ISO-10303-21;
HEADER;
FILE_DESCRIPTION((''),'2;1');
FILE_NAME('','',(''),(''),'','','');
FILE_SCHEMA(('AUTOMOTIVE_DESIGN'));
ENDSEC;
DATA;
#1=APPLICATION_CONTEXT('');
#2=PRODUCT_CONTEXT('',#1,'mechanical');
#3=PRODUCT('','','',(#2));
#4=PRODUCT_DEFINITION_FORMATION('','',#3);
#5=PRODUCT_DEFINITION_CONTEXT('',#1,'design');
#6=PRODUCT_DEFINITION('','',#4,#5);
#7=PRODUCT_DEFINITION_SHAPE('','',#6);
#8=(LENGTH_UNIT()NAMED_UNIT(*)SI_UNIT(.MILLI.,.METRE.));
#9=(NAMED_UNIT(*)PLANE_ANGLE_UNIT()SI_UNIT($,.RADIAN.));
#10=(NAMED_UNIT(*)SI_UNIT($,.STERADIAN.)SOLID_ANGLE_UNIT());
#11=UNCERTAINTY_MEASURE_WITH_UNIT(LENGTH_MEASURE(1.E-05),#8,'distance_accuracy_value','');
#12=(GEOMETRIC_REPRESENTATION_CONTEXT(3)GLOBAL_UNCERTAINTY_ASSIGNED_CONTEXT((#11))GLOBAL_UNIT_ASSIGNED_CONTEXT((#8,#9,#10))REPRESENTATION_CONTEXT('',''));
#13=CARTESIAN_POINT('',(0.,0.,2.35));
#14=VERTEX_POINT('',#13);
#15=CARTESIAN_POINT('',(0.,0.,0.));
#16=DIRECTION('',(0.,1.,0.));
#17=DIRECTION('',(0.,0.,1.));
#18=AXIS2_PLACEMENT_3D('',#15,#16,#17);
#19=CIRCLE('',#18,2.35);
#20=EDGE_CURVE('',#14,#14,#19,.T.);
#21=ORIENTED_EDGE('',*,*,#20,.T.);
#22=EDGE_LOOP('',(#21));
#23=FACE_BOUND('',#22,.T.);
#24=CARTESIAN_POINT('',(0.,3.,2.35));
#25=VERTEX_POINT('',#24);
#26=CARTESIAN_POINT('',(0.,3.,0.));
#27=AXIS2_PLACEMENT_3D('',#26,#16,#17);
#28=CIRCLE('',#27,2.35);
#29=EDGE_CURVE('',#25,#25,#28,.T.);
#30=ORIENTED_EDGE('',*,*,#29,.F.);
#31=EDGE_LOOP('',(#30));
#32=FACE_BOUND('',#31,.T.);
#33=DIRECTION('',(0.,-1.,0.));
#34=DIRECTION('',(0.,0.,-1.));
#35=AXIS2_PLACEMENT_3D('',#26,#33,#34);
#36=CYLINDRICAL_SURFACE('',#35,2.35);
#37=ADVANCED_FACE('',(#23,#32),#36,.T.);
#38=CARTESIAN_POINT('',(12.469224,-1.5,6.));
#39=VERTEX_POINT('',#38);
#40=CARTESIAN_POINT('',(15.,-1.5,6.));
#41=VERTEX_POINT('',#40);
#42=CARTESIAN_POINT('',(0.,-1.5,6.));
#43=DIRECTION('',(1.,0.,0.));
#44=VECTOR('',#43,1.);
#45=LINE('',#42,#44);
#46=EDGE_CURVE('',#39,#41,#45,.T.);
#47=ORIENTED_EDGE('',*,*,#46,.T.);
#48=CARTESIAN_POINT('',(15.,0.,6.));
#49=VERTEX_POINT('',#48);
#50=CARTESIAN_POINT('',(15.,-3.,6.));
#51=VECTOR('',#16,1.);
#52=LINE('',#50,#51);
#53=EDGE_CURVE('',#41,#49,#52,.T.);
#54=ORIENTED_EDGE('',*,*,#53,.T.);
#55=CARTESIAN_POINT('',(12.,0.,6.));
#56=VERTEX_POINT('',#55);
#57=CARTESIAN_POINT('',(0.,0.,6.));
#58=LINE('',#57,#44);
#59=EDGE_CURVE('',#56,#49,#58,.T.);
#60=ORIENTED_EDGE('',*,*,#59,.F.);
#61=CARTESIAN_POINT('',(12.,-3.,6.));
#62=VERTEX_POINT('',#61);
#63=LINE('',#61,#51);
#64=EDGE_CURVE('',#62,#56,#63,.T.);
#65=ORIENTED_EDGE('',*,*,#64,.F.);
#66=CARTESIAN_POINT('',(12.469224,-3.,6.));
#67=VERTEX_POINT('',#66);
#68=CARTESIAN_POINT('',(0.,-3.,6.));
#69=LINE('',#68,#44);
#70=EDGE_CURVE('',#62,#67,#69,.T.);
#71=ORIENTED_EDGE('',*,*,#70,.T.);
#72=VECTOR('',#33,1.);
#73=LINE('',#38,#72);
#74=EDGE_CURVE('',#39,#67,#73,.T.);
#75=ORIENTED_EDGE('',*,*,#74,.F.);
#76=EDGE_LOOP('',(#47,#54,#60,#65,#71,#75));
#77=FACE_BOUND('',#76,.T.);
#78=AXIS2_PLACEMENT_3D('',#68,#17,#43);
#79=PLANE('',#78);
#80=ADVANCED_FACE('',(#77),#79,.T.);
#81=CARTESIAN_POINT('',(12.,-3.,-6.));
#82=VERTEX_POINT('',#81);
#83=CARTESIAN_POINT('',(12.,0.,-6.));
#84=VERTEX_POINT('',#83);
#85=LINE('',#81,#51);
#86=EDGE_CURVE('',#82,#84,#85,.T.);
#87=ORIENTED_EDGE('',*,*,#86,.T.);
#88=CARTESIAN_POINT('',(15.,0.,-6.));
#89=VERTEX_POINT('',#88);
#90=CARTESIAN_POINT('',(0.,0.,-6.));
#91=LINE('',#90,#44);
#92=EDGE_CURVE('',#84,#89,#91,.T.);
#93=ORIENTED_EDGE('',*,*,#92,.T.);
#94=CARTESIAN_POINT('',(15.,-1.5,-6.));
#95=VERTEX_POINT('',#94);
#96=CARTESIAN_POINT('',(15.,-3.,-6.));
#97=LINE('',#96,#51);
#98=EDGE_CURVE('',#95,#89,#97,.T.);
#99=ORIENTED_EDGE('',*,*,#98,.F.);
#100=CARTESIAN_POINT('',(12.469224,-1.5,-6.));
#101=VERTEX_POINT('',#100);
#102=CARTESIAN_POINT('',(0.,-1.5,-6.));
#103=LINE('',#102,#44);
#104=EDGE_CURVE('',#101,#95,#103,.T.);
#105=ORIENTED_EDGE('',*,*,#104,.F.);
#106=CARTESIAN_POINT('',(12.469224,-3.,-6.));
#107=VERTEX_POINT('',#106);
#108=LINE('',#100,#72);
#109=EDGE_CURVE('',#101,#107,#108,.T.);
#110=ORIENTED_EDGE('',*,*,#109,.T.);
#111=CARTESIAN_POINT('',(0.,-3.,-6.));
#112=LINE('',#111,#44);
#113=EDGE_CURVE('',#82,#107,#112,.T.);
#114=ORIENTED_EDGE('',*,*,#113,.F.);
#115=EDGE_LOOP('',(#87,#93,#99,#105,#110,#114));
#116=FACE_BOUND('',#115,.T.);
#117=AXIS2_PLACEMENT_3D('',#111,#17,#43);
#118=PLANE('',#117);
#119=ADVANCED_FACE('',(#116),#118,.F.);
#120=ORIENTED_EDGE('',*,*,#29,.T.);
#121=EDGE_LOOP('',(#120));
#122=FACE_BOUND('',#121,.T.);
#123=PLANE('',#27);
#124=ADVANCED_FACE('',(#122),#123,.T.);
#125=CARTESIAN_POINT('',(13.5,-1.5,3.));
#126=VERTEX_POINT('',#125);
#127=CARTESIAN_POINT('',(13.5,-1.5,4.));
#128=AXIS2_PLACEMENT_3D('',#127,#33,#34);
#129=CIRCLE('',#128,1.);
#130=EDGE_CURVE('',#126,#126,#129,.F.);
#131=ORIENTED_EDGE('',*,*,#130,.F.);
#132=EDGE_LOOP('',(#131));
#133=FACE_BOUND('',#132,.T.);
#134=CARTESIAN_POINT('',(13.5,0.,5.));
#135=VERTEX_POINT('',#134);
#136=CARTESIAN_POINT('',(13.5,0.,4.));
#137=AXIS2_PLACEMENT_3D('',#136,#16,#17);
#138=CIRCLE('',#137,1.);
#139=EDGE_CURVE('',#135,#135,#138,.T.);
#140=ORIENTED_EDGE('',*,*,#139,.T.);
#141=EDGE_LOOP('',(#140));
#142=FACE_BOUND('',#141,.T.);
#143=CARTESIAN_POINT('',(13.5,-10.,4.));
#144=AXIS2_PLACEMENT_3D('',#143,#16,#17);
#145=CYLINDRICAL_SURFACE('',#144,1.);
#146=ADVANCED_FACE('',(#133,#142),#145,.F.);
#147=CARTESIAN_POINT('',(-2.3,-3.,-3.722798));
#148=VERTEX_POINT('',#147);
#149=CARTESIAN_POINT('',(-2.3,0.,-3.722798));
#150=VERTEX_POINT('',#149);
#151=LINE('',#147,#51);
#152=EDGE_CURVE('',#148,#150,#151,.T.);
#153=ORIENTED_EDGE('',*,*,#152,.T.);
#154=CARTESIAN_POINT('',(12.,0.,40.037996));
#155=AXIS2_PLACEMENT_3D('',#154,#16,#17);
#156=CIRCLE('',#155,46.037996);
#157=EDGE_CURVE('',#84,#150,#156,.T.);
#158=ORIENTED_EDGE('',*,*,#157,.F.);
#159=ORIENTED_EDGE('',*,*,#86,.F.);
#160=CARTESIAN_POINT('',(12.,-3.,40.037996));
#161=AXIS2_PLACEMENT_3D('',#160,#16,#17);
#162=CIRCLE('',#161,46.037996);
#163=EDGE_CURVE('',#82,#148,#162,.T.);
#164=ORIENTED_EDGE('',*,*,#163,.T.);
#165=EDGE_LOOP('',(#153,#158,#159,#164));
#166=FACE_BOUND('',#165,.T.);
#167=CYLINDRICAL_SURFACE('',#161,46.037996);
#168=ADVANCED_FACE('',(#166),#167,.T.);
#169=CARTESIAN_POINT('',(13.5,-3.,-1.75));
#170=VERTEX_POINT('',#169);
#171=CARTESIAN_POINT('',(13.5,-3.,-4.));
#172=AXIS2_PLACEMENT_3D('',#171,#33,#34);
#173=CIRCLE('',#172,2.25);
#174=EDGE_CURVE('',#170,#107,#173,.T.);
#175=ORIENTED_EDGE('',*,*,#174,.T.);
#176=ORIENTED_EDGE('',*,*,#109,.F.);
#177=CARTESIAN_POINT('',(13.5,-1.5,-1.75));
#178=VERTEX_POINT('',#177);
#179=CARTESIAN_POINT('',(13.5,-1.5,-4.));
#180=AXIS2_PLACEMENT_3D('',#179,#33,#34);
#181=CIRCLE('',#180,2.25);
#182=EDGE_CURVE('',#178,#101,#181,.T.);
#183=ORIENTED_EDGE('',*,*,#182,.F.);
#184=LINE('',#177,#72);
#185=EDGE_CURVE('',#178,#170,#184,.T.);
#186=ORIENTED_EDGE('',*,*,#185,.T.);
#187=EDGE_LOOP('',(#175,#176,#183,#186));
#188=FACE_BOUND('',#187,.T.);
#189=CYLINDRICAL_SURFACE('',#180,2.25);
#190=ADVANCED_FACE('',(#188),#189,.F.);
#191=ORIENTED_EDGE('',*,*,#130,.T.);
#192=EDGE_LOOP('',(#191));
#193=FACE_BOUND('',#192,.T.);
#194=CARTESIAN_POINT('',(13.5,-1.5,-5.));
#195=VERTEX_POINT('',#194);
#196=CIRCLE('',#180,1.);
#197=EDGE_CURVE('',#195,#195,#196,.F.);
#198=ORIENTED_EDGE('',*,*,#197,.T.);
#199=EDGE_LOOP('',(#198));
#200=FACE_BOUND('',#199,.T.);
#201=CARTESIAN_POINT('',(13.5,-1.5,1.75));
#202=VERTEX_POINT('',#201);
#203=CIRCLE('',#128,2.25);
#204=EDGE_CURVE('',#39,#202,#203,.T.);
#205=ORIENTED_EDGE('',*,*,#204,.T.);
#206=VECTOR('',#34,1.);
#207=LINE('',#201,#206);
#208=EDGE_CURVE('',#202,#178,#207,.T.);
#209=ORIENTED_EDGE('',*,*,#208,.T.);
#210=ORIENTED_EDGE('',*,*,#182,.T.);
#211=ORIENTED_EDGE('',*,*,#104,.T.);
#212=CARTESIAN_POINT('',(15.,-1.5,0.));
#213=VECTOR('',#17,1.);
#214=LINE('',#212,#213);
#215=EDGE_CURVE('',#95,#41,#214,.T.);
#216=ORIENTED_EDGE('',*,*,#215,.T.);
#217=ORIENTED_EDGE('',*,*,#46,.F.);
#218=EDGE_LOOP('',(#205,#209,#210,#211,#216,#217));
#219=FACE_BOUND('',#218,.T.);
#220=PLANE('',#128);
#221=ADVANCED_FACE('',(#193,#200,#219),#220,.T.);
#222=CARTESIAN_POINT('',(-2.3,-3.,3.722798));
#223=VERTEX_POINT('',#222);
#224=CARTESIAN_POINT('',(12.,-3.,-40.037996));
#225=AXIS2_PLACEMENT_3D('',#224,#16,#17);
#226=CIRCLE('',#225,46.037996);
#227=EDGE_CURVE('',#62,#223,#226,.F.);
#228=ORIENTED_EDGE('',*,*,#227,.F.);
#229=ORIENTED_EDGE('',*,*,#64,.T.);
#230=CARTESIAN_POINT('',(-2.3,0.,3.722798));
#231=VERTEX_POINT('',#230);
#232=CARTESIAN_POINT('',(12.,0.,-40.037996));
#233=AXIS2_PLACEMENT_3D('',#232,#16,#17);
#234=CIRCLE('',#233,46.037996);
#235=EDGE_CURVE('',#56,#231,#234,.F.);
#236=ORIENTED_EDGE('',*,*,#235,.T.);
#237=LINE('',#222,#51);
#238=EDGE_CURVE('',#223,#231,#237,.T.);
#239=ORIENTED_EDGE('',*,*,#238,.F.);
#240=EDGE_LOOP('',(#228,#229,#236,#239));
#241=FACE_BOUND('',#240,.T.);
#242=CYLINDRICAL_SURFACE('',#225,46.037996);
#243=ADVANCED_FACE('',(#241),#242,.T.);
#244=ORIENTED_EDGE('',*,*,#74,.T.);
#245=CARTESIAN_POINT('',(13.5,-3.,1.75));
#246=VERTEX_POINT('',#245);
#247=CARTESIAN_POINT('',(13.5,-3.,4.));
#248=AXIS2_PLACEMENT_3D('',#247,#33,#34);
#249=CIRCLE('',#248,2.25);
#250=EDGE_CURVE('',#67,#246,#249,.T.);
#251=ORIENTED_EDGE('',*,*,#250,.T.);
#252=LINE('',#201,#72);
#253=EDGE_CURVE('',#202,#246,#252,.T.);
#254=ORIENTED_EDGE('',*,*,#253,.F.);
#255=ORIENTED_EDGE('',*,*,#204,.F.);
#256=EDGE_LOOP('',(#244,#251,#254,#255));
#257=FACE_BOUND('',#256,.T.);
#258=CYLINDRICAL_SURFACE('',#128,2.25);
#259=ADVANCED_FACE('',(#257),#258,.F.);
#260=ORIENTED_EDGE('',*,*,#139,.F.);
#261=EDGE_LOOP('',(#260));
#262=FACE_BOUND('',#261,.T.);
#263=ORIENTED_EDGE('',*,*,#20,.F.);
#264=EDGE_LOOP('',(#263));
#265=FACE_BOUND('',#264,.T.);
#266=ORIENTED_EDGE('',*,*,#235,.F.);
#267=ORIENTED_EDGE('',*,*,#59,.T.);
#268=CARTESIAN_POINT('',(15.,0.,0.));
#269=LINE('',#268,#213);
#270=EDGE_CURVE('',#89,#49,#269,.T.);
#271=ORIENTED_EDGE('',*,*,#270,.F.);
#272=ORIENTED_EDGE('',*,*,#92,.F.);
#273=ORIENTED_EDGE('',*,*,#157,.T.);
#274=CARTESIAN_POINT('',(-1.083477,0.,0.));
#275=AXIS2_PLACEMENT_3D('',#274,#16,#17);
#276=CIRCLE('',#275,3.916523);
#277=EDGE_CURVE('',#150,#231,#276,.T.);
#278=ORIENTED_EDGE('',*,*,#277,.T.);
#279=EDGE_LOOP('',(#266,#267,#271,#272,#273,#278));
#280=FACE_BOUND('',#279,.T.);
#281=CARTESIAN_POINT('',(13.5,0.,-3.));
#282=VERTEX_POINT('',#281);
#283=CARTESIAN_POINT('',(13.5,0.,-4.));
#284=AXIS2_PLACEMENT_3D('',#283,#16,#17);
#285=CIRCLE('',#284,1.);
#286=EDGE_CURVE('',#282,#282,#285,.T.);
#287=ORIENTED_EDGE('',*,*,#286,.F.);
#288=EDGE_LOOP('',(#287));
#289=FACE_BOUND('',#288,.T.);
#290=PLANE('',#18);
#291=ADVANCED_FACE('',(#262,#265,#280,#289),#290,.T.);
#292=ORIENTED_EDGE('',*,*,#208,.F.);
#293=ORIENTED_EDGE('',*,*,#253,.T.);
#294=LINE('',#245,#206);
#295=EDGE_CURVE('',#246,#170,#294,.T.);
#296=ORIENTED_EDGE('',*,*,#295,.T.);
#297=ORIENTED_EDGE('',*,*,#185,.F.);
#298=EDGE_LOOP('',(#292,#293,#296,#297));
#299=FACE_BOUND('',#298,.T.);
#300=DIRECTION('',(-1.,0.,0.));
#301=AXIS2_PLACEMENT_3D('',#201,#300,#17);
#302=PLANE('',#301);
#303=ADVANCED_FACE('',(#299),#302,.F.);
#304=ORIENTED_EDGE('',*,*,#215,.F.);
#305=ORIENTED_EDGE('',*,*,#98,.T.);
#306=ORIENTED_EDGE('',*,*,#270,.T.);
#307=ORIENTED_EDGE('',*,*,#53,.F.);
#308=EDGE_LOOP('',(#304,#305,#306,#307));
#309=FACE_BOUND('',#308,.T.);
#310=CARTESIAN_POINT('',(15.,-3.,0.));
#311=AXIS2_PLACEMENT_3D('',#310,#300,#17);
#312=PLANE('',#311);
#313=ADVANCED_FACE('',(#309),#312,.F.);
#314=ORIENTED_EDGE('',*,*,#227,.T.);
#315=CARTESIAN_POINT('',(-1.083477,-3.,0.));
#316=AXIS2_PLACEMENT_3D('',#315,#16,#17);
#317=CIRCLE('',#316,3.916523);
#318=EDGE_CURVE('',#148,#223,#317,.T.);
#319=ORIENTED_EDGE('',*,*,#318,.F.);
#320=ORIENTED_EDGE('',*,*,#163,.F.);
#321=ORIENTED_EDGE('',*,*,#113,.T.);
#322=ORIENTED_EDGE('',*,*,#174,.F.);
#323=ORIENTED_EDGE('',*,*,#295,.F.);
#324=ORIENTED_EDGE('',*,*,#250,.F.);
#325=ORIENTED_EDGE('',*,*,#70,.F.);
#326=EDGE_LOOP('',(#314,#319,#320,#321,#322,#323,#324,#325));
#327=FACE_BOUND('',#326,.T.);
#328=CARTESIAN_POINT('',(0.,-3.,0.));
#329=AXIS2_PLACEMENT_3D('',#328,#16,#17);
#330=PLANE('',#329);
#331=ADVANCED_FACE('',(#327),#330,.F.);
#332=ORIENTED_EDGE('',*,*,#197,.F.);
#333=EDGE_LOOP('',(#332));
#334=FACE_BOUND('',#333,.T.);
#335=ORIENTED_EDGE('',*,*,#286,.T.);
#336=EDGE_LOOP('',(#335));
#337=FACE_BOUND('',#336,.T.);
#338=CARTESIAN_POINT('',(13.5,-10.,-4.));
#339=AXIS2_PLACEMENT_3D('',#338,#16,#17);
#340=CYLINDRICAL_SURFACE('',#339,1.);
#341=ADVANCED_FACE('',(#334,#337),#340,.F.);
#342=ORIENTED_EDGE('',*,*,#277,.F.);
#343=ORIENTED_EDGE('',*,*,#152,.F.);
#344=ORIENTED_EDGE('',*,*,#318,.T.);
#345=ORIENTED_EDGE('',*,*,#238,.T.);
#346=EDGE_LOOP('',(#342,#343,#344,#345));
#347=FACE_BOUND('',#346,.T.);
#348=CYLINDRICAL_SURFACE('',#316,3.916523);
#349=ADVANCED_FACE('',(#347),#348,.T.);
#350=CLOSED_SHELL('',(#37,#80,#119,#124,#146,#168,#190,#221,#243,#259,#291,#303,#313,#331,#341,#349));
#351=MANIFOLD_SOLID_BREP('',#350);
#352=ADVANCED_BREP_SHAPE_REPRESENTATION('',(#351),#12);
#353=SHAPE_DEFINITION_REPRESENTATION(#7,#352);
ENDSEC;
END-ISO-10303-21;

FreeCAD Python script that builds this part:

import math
import FreeCAD as App
import Part
import Sketcher
Q = App.Units.Quantity

doc = App.newDocument("Part")
body = doc.addObject("PartDesign::Body", "Body")

# Sketch on XZ plane
sketch1 = doc.addObject("Sketcher::SketchObject", "Sketch")
body.addObject(sketch1)
sketch1.AttachmentSupport = (doc.XZ_Plane, [""])
sketch1.MapMode = "FlatFace"
sketch1.addGeometry(Part.LineSegment(App.Vector(15, -6, 0), App.Vector(12, -6, 0)), False)
sketch1.addGeometry(Part.ArcOfCircle(Part.Circle(App.Vector(12, 40, 0), App.Vector(0, 0, 1), 46), math.radians(-108.1), math.radians(-90)), False)
sketch1.addGeometry(Part.ArcOfCircle(Part.Circle(App.Vector(-1.1, 0, 0), App.Vector(0, 0, 1), 3.9), math.radians(108), math.radians(252)), False)
sketch1.addGeometry(Part.ArcOfCircle(Part.Circle(App.Vector(12, -40, 0), App.Vector(0, 0, 1), 46), math.radians(90), math.radians(108.1)), False)
sketch1.addGeometry(Part.LineSegment(App.Vector(12, 6, 0), App.Vector(15, 6, 0)), False)
sketch1.addGeometry(Part.LineSegment(App.Vector(15, 6, 0), App.Vector(15, -6, 0)), False)
sketch1.addConstraint(Sketcher.Constraint("Tangent", 0, 2, 1, 2))
sketch1.addConstraint(Sketcher.Constraint("Tangent", 1, 1, 2, 2))
sketch1.addConstraint(Sketcher.Constraint("Tangent", 2, 1, 3, 2))
sketch1.addConstraint(Sketcher.Constraint("Tangent", 3, 1, 4, 1))
sketch1.addConstraint(Sketcher.Constraint("Coincident", 4, 2, 5, 1))
sketch1.addConstraint(Sketcher.Constraint("Coincident", 5, 2, 0, 1))
sketch1.addConstraint(Sketcher.Constraint("Horizontal", 0))
sketch1.addConstraint(Sketcher.Constraint("Horizontal", 4))
sketch1.addConstraint(Sketcher.Constraint("Vertical", 5))
sketch1.addConstraint(Sketcher.Constraint("Equal", 1, 3))
sketch1.addConstraint(Sketcher.Constraint("Symmetric", 1, 3, 3, 3, -1))
sketch1.addConstraint(Sketcher.Constraint("DistanceX", 0, 2, 0, 1, Q("3 mm")))
sketch1.addConstraint(Sketcher.Constraint("DistanceY", 5, 2, 5, 1, Q("12 mm")))
sketch1.addConstraint(Sketcher.Constraint("DistanceX", -1, 1, 1, 3, Q("12 mm")))
sketch1.addConstraint(Sketcher.Constraint("DistanceX", 1, 1, -1, 1, Q("2.3 mm")))
sketch1.addConstraint(Sketcher.Constraint("Radius", 1, Q("46.037996 mm")))
pad1 = doc.addObject("PartDesign::Pad", "Pad")
body.addObject(pad1)
pad1.Profile = sketch1
pad1.Length = 3

# Sketch on XZ plane
sketch2 = doc.addObject("Sketcher::SketchObject", "Sketch001")
body.addObject(sketch2)
sketch2.AttachmentSupport = (doc.XZ_Plane, [""])
sketch2.MapMode = "FlatFace"
sketch2.addGeometry(Part.Circle(App.Vector(0, 0, 0), App.Vector(0, 0, 1), 2.4), False)
sketch2.addConstraint(Sketcher.Constraint("Coincident", 0, 3, -1, 1))
sketch2.addConstraint(Sketcher.Constraint("Diameter", 0, Q("4.7 mm")))
pad2 = doc.addObject("PartDesign::Pad", "Pad001")
body.addObject(pad2)
pad2.Profile = sketch2
pad2.Length = 3
pad2.Reversed = True

# Sketch on XZ plane
sketch3 = doc.addObject("Sketcher::SketchObject", "Sketch002")
body.addObject(sketch3)
sketch3.AttachmentSupport = (doc.XZ_Plane, [""])
sketch3.MapMode = "FlatFace"
sketch3.addGeometry(Part.Circle(App.Vector(13.5, 4, 0), App.Vector(0, 0, 1), 1), False)
sketch3.addGeometry(Part.Circle(App.Vector(13.5, -4, 0), App.Vector(0, 0, 1), 1), False)
sketch3.addConstraint(Sketcher.Constraint("Equal", 0, 1))
sketch3.addConstraint(Sketcher.Constraint("Symmetric", 0, 3, 1, 3, -1))
sketch3.addConstraint(Sketcher.Constraint("Diameter", 0, Q("2 mm")))
sketch3.addConstraint(Sketcher.Constraint("DistanceY", -1, 1, 0, 3, Q("4 mm")))
sketch3.addConstraint(Sketcher.Constraint("DistanceX", -1, 1, 0, 3, Q("13.5 mm")))
pocket1 = doc.addObject("PartDesign::Pocket", "Pocket")
body.addObject(pocket1)
pocket1.Profile = sketch3
pocket1.Length = 10
pocket1.Reversed = True

# Sketch on XZ plane
sketch4 = doc.addObject("Sketcher::SketchObject", "Sketch003")
body.addObject(sketch4)
sketch4.AttachmentSupport = (doc.XZ_Plane, [""])
sketch4.MapMode = "FlatFace"
sketch4.AttachmentOffset = App.Placement(App.Vector(0, 0, 3), App.Rotation())
sketch4.addGeometry(Part.LineSegment(App.Vector(13.5, 10, 0), App.Vector(13.5, 6.2, 0)), False)
sketch4.addGeometry(Part.ArcOfCircle(Part.Circle(App.Vector(13.5, 4, 0), App.Vector(0, 0, 1), 2.2), math.radians(90), math.radians(270)), False)
sketch4.addGeometry(Part.LineSegment(App.Vector(13.5, 1.8, 0), App.Vector(13.5, -1.8, 0)), False)
sketch4.addGeometry(Part.ArcOfCircle(Part.Circle(App.Vector(13.5, -4, 0), App.Vector(0, 0, 1), 2.2), math.radians(90), math.radians(270)), False)
sketch4.addGeometry(Part.LineSegment(App.Vector(13.5, -6.2, 0), App.Vector(13.5, -10.1, 0)), False)
sketch4.addGeometry(Part.LineSegment(App.Vector(13.5, -10.1, 0), App.Vector(18.7, -10.1, 0)), False)
sketch4.addGeometry(Part.LineSegment(App.Vector(18.7, -10.1, 0), App.Vector(19.2, 10, 0)), False)
sketch4.addGeometry(Part.LineSegment(App.Vector(19.2, 10, 0), App.Vector(13.5, 10, 0)), False)
sketch4.addConstraint(Sketcher.Constraint("Coincident", 0, 2, 1, 1))
sketch4.addConstraint(Sketcher.Constraint("Coincident", 1, 2, 2, 1))
sketch4.addConstraint(Sketcher.Constraint("Coincident", 2, 2, 3, 1))
sketch4.addConstraint(Sketcher.Constraint("Coincident", 3, 2, 4, 1))
sketch4.addConstraint(Sketcher.Constraint("Coincident", 4, 2, 5, 1))
sketch4.addConstraint(Sketcher.Constraint("Coincident", 5, 2, 6, 1))
sketch4.addConstraint(Sketcher.Constraint("Coincident", 6, 2, 7, 1))
sketch4.addConstraint(Sketcher.Constraint("Coincident", 7, 2, 0, 1))
sketch4.addConstraint(Sketcher.Constraint("Vertical", 0))
sketch4.addConstraint(Sketcher.Constraint("Vertical", 2))
sketch4.addConstraint(Sketcher.Constraint("Vertical", 4))
sketch4.addConstraint(Sketcher.Constraint("Horizontal", 5))
sketch4.addConstraint(Sketcher.Constraint("Horizontal", 7))
sketch4.addConstraint(Sketcher.Constraint("Equal", 1, 3))
sketch4.addConstraint(Sketcher.Constraint("Symmetric", 1, 3, 3, 3, -1))
sketch4.addConstraint(Sketcher.Constraint("Vertical", 3, 3, 0, 2))
sketch4.addConstraint(Sketcher.Constraint("Vertical", 0, 2, 1, 2))
sketch4.addConstraint(Sketcher.Constraint("Vertical", 2, 2, 3, 2))
sketch4.addConstraint(Sketcher.Constraint("Radius", 1, Q("2.25 mm")))
sketch4.addConstraint(Sketcher.Constraint("DistanceY", 2, 2, 2, 1, Q("3.5 mm")))
sketch4.addConstraint(Sketcher.Constraint("DistanceX", -1, 1, 1, 3, Q("13.5 mm")))
sketch4.addConstraint(Sketcher.Constraint("DistanceX", 5, 1, 5, 2, Q("5.211162 mm")))
sketch4.addConstraint(Sketcher.Constraint("DistanceX", 7, 2, 7, 1, Q("5.66099 mm")))
sketch4.addConstraint(Sketcher.Constraint("DistanceY", 0, 2, 0, 1, Q("3.787761 mm")))
sketch4.addConstraint(Sketcher.Constraint("DistanceY", 4, 2, 4, 1, Q("3.846982 mm")))
pocket2 = doc.addObject("PartDesign::Pocket", "Pocket001")
body.addObject(pocket2)
pocket2.Profile = sketch4
pocket2.Length = 1.5

doc.recompute()
